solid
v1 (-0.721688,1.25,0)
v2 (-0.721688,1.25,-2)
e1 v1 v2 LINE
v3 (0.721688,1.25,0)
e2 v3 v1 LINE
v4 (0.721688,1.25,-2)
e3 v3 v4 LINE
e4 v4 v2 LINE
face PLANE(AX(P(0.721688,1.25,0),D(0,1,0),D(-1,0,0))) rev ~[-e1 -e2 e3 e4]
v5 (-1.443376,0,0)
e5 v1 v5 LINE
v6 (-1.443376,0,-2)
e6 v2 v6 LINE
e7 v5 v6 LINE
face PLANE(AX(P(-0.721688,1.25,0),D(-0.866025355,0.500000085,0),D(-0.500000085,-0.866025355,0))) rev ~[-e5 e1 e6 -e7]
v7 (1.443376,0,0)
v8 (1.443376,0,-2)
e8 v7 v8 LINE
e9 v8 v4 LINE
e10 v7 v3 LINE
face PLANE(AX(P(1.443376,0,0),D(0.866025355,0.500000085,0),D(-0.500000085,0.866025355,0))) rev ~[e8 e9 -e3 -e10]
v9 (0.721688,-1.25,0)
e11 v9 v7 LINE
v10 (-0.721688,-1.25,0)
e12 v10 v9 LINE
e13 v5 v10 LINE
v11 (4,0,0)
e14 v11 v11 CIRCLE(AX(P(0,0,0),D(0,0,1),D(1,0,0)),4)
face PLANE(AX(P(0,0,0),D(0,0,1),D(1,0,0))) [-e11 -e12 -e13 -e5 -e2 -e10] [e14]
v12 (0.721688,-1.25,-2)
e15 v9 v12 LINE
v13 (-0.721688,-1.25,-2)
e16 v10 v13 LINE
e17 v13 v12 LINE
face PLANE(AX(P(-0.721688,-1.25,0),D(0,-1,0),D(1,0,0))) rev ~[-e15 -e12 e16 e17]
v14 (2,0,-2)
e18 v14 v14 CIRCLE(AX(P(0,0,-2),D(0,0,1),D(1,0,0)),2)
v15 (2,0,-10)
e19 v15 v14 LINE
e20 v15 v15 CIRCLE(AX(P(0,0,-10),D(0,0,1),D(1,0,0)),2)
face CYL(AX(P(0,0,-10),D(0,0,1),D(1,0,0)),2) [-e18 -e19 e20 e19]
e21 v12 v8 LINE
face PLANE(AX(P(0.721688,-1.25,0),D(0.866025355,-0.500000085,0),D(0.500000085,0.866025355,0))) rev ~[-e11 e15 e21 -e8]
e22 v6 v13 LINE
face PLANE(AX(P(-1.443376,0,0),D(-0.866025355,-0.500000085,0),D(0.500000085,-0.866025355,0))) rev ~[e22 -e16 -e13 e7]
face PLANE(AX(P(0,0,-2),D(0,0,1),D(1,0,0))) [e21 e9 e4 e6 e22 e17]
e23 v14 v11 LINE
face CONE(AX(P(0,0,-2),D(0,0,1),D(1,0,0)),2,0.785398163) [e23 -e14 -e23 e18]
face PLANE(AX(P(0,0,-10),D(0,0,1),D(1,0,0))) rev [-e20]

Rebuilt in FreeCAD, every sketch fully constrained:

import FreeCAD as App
import Part
import Sketcher
from FreeCAD import Vector
Q = App.Units.Quantity


def add_polygon(sketch, points):
    """Adds a closed chain of lines whose ends are joined by coincident constraints."""
    first, n = sketch.GeometryCount, len(points)
    for a, b in zip(points, points[1:] + points[:1]):
        sketch.addGeometry(Part.LineSegment(App.Vector(*a, 0), App.Vector(*b, 0)), False)
    for i in range(n):
        sketch.addConstraint(Sketcher.Constraint("Coincident", first + i, 2, first + (i + 1) % n, 1))

doc = App.newDocument("Part")
body = doc.addObject("PartDesign::Body", "Body")

# Sketch on XZ plane
sketch1 = body.newObject("Sketcher::SketchObject", "Sketch")
sketch1.AttachmentSupport = (doc.getObject("XZ_Plane"), [""])
sketch1.MapMode = "FlatFace"
add_polygon(sketch1, [(4, 0), (0, 0), (0, -10), (2, -10), (2, -2)])  # lines 0-4
sketch1.addConstraint(Sketcher.Constraint("Horizontal", 0))
sketch1.addConstraint(Sketcher.Constraint("Vertical", 1))
sketch1.addConstraint(Sketcher.Constraint("Horizontal", 2))
sketch1.addConstraint(Sketcher.Constraint("Vertical", 3))
sketch1.addConstraint(Sketcher.Constraint("Coincident", 0, 2, -1, 1))
sketch1.addConstraint(Sketcher.Constraint("DistanceX", 0, 2, 0, 1, Q("4 mm")))
sketch1.addConstraint(Sketcher.Constraint("DistanceX", 2, 1, 2, 2, Q("2 mm")))
sketch1.addConstraint(Sketcher.Constraint("DistanceY", 1, 2, 1, 1, Q("10 mm")))
sketch1.addConstraint(Sketcher.Constraint("DistanceY", 3, 1, 3, 2, Q("8 mm")))
revolution = body.newObject("PartDesign::Revolution", "Revolution")
revolution.Profile = sketch1
revolution.ReferenceAxis = (sketch1, ["V_Axis"])
revolution.Angle = 360

# Sketch on XY plane
sketch2 = body.newObject("Sketcher::SketchObject", "Sketch001")
sketch2.AttachmentSupport = (doc.getObject("XY_Plane"), [""])
sketch2.MapMode = "FlatFace"
add_polygon(sketch2, [(0.721688, 1.25), (-0.721688, 1.25), (-1.443376, 0), (-0.721688, -1.25), (0.721688, -1.25), (1.443376, 0)])  # lines 0-5
sketch2.addConstraint(Sketcher.Constraint("Horizontal", 0))
sketch2.addConstraint(Sketcher.Constraint("Horizontal", 3))
sketch2.addConstraint(Sketcher.Constraint("Symmetric", 0, 2, 3, 2, -1, 1))
sketch2.addConstraint(Sketcher.Constraint("Symmetric", 1, 2, 4, 2, -1, 1))
sketch2.addConstraint(Sketcher.Constraint("PointOnObject", 1, 2, -1))
sketch2.addConstraint(Sketcher.Constraint("Parallel", 2, 5))
sketch2.addConstraint(Sketcher.Constraint("Vertical", 0, 2, 2, 2))
sketch2.addConstraint(Sketcher.Constraint("Angle", 1, Q("-120.000006 deg")))
sketch2.addConstraint(Sketcher.Constraint("DistanceY", 2, 2, 0, 2, Q("2.5 mm")))
sketch2.addConstraint(Sketcher.Constraint("DistanceX", 0, 2, 0, 1, Q("1.443376 mm")))
pocket1 = body.newObject("PartDesign::Pocket", "Pocket")
pocket1.Profile = sketch2
pocket1.Length = 2

doc.recompute()
